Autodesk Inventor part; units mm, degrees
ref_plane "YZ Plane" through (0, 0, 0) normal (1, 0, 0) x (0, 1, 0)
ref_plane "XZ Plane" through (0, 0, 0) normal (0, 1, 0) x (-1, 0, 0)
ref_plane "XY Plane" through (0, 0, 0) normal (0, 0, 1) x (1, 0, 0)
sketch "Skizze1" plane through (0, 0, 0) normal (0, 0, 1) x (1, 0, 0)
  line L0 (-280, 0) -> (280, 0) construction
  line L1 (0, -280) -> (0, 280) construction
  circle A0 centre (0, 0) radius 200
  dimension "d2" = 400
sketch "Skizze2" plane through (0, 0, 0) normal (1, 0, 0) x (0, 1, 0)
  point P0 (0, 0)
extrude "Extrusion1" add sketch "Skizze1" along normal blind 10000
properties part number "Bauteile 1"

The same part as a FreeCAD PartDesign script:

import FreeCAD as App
import Part
import Sketcher

doc = App.newDocument("Part")
body = doc.addObject("PartDesign::Body", "Body")

# Sketch on XY plane
sketch1 = body.newObject("Sketcher::SketchObject", "Sketch")
sketch1.AttachmentSupport = (doc.getObject("XY_Plane"), [""])
sketch1.MapMode = "FlatFace"
sketch1.addGeometry(Part.Circle(App.Vector(0, 0, 0), App.Vector(0, 0, 1), 200), False)
sketch1.addConstraint([
    Sketcher.Constraint("Coincident", 0, 3, -1, 1),
    Sketcher.Constraint("Diameter", 0, 400.0),
])
pad1 = body.newObject("PartDesign::Pad", "Pad")
pad1.Profile = sketch1
pad1.Length = 10000

doc.recompute()
